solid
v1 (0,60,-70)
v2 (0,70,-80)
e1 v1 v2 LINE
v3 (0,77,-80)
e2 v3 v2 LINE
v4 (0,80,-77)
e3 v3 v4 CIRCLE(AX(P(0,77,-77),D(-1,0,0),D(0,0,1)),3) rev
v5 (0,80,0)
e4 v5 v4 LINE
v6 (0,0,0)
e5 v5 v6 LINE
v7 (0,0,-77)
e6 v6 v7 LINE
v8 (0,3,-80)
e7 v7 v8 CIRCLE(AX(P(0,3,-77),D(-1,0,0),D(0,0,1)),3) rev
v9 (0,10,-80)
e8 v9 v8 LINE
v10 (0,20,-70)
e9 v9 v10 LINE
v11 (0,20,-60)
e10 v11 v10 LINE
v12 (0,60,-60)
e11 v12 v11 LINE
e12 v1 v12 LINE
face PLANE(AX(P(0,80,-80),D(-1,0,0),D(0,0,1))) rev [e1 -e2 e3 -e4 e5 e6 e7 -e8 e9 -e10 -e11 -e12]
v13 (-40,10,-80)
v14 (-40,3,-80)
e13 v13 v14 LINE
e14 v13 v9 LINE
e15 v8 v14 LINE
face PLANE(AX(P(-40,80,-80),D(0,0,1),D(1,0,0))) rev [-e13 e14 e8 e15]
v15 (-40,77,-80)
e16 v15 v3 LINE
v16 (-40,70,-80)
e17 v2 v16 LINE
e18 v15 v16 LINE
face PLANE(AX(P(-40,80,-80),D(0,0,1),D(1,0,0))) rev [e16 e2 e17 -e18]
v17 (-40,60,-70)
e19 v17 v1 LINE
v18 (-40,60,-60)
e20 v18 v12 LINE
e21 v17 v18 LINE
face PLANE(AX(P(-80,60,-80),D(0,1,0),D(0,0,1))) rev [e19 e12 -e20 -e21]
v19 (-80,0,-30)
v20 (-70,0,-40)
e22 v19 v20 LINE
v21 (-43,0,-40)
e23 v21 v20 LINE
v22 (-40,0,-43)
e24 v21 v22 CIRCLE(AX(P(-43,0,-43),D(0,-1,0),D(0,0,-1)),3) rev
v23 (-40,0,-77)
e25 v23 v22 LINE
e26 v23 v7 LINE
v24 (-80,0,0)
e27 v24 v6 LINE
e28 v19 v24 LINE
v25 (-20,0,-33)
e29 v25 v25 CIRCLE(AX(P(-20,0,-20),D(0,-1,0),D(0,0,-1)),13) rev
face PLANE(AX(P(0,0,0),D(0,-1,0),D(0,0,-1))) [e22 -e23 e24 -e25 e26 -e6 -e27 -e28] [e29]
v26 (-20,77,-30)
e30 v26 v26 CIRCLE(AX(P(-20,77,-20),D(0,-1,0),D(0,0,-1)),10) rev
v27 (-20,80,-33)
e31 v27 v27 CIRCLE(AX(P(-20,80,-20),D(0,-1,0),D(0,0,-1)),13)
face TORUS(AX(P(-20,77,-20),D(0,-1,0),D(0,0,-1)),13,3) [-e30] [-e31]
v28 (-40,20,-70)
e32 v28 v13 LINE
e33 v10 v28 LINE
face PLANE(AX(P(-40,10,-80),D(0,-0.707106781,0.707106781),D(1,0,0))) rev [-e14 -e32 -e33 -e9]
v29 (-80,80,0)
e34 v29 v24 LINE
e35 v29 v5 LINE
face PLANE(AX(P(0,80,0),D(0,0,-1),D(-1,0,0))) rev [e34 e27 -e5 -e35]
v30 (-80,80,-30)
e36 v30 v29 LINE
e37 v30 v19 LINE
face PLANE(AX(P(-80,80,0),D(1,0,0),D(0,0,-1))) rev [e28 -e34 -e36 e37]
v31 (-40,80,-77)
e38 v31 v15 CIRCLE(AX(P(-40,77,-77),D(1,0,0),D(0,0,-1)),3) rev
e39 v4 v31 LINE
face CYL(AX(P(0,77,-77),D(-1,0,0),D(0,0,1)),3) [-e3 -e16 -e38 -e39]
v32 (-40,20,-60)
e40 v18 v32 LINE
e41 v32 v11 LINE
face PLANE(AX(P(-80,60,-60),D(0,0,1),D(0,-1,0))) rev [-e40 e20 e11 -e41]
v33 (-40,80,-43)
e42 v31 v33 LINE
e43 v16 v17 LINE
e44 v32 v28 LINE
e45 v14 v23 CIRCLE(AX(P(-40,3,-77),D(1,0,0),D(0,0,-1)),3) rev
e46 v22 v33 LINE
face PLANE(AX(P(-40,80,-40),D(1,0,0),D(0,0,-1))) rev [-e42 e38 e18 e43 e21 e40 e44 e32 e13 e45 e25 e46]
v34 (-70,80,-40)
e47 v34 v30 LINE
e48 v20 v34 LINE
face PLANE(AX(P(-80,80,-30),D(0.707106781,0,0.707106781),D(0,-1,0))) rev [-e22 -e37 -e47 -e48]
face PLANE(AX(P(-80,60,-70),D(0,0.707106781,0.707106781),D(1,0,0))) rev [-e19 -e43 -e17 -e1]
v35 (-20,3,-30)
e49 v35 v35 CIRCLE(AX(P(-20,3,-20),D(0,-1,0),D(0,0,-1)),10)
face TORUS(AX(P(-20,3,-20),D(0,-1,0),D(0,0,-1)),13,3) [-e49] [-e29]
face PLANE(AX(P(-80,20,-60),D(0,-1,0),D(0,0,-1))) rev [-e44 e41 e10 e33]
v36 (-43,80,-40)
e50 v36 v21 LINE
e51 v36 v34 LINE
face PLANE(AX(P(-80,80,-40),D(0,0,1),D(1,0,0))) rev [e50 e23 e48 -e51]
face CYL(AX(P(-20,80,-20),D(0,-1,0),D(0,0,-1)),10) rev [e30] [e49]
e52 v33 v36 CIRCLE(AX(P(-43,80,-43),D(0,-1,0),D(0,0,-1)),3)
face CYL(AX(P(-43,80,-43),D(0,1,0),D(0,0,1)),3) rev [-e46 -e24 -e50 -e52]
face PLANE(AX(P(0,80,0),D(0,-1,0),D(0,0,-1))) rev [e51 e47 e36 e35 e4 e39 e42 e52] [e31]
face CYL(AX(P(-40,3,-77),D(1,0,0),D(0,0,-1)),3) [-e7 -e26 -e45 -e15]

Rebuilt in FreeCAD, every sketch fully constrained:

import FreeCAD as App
import Part
import Sketcher


def edges_at(feature, points):
    """Names of the edges that pass closest to the given points."""
    edges = feature.Shape.Edges
    near = lambda p: min(range(len(edges)), key=lambda i: edges[i].distToShape(Part.Vertex(*p))[0])
    return sorted({f"Edge{near(p) + 1}" for p in points})


def add_polygon(sketch, points):
    """Adds a closed chain of lines whose ends are joined by coincident constraints."""
    first, n = sketch.GeometryCount, len(points)
    for a, b in zip(points, points[1:] + points[:1]):
        sketch.addGeometry(Part.LineSegment(App.Vector(*a, 0), App.Vector(*b, 0)), False)
    for i in range(n):
        sketch.addConstraint(Sketcher.Constraint("Coincident", first + i, 2, first + (i + 1) % n, 1))

doc = App.newDocument("Part")
body = doc.addObject("PartDesign::Body", "Body")

# Sketch on XZ plane
sketch1 = body.newObject("Sketcher::SketchObject", "Sketch")
sketch1.AttachmentSupport = (doc.getObject("XZ_Plane"), [""])
sketch1.MapMode = "FlatFace"
add_polygon(sketch1, [(-80, 0), (0, 0), (0, -80), (-40, -80), (-40, -40), (-80, -40)])  # lines 0-5
sketch1.addGeometry(Part.Circle(App.Vector(-20, -20, 0), App.Vector(0, 0, 1), 10), False)  # 6
sketch1.addConstraint([
    Sketcher.Constraint("Horizontal", 0),
    Sketcher.Constraint("Vertical", 1),
    Sketcher.Constraint("Horizontal", 2),
    Sketcher.Constraint("Vertical", 3),
    Sketcher.Constraint("Horizontal", 4),
    Sketcher.Constraint("Vertical", 5),
    Sketcher.Constraint("Coincident", 0, 2, -1, 1),
    Sketcher.Constraint("Equal", 2, 4),
    Sketcher.Constraint("Equal", 0, 1),
    Sketcher.Constraint("Equal", 4, 3),
    Sketcher.Constraint("Diameter", 6, 20.0),
    Sketcher.Constraint("DistanceX", 0, 1, 0, 2, 80.0),
    Sketcher.Constraint("DistanceX", 6, 3, -1, 1, 20.0),
    Sketcher.Constraint("DistanceY", 6, 3, -1, 1, 20.0),
])
pad1 = body.newObject("PartDesign::Pad", "Pad")
pad1.Profile = sketch1
pad1.Length = 80
pad1.Reversed = True

# Sketch on YZ plane
sketch2 = body.newObject("Sketcher::SketchObject", "Sketch001")
sketch2.AttachmentSupport = (doc.getObject("YZ_Plane"), [""])
sketch2.MapMode = "FlatFace"
add_polygon(sketch2, [(60, -60), (20, -60), (20, -80), (60, -80)])  # lines 0-3
sketch2.addConstraint([
    Sketcher.Constraint("Horizontal", 0),
    Sketcher.Constraint("Vertical", 1),
    Sketcher.Constraint("Horizontal", 2),
    Sketcher.Constraint("Vertical", 3),
    Sketcher.Constraint("DistanceX", 0, 2, 0, 1, 40.0),
    Sketcher.Constraint("DistanceY", 1, 2, 1, 1, 20.0),
    Sketcher.Constraint("DistanceX", -1, 1, 0, 2, 20.0),
    Sketcher.Constraint("DistanceY", 0, 2, -1, 1, 60.0),
])
pocket1 = body.newObject("PartDesign::Pocket", "Pocket")
pocket1.Profile = sketch2
pocket1.Type = "ThroughAll"
doc.recompute()

fillet = body.newObject("PartDesign::Fillet", "Fillet")
fillet.Base = (pocket1, edges_at(pocket1, [(-20, 0, -80)]))
fillet.Radius = 3
doc.recompute()

fillet2 = body.newObject("PartDesign::Fillet", "Fillet001")
fillet2.Base = (fillet, edges_at(fillet, [(-20, 80, -80)]))
fillet2.Radius = 3
doc.recompute()

chamfer = body.newObject("PartDesign::Chamfer", "Chamfer")
chamfer.Base = (fillet2, edges_at(fillet2, [(-20, 60, -80)]))
chamfer.Size = 10
doc.recompute()

chamfer2 = body.newObject("PartDesign::Chamfer", "Chamfer001")
chamfer2.Base = (chamfer, edges_at(chamfer, [(-20, 20, -80)]))
chamfer2.Size = 10
doc.recompute()

chamfer3 = body.newObject("PartDesign::Chamfer", "Chamfer002")
chamfer3.Base = (chamfer2, edges_at(chamfer2, [(-80, 40, -40)]))
chamfer3.Size = 10
doc.recompute()

fillet3 = body.newObject("PartDesign::Fillet", "Fillet002")
fillet3.Base = (chamfer3, edges_at(chamfer3, [(-40, 40, -40)]))
fillet3.Radius = 3
doc.recompute()

fillet4 = body.newObject("PartDesign::Fillet", "Fillet003")
fillet4.Base = (fillet3, edges_at(fillet3, [(-20, 0, -30)]))
fillet4.Radius = 3
doc.recompute()

fillet5 = body.newObject("PartDesign::Fillet", "Fillet004")
fillet5.Base = (fillet4, edges_at(fillet4, [(-20, 80, -30)]))
fillet5.Radius = 3

doc.recompute()
